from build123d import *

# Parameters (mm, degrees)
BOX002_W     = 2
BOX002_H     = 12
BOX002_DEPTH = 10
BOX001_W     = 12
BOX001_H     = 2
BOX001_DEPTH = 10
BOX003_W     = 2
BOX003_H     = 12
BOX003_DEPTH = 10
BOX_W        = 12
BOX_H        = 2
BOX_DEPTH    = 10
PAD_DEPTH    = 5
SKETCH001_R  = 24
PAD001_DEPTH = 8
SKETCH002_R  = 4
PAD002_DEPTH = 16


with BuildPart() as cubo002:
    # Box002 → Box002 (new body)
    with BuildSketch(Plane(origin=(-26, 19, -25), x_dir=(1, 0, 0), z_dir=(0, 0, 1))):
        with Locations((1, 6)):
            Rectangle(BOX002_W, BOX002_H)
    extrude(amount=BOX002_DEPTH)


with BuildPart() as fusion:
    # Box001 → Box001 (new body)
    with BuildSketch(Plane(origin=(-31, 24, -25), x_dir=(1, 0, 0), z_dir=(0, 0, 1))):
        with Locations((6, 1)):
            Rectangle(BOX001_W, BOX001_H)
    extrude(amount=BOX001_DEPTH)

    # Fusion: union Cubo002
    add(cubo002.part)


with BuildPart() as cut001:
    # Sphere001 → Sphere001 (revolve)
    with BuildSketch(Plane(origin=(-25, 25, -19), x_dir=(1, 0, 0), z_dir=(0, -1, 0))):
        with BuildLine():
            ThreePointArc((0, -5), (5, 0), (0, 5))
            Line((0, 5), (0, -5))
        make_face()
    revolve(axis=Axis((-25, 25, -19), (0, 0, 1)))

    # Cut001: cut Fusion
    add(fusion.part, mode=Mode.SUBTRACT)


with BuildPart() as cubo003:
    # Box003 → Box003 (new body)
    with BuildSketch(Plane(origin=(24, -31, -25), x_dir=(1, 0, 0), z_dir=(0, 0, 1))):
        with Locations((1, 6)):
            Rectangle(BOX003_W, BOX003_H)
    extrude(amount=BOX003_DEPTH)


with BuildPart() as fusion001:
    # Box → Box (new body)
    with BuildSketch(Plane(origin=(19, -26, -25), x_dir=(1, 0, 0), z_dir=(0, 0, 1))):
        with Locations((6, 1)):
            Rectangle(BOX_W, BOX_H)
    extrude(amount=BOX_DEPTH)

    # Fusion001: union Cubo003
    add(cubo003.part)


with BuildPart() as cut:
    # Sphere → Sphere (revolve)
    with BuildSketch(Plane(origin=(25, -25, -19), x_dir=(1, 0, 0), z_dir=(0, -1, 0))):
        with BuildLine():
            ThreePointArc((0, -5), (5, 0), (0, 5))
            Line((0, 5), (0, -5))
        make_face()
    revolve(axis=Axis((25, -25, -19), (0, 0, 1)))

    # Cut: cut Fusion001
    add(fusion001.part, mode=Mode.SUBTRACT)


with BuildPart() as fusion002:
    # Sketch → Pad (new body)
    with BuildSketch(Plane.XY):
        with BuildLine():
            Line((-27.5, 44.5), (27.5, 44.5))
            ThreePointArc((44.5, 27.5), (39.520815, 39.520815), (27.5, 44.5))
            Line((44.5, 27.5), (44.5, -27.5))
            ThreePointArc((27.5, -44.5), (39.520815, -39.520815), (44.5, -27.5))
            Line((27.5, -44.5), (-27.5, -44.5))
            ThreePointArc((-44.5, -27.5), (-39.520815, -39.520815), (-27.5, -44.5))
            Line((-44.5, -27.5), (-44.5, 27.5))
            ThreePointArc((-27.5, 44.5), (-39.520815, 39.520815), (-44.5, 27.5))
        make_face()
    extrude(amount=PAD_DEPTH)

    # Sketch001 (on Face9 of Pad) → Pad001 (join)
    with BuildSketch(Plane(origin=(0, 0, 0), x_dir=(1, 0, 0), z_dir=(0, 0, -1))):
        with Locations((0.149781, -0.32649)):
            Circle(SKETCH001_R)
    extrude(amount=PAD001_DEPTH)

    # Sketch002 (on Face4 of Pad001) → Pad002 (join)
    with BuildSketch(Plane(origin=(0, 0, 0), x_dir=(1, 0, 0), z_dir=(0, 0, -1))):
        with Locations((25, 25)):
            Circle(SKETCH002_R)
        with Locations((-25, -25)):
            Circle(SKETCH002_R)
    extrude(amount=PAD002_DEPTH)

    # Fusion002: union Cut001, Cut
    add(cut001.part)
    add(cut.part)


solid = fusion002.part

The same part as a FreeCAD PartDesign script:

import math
import FreeCAD as App
import Part
import Sketcher
from FreeCAD import Vector
Q = App.Units.Quantity

doc = App.newDocument("Part")
body = doc.addObject("PartDesign::Body", "Body")

sketch1 = doc.addObject("Sketcher::SketchObject", "Sketch")
body.addObject(sketch1)
sketch1.AttachmentSupport = (doc.XY_Plane, [""])
sketch1.MapMode = "FlatFace"
sketch1.AttachmentOffset = App.Placement(Vector(0, 0, -25), App.Rotation())
sketch1.addGeometry([
    Part.LineSegment(Vector(-26, 31, 0), Vector(-26, 19, 0)),
    Part.LineSegment(Vector(-26, 19, 0), Vector(-24, 19, 0)),
    Part.LineSegment(Vector(-24, 19, 0), Vector(-24, 31, 0)),
    Part.LineSegment(Vector(-24, 31, 0), Vector(-26, 31, 0)),
], False)
sketch1.addConstraint([
    Sketcher.Constraint("Coincident", 0, 2, 1, 1),
    Sketcher.Constraint("Coincident", 1, 2, 2, 1),
    Sketcher.Constraint("Coincident", 2, 2, 3, 1),
    Sketcher.Constraint("Coincident", 3, 2, 0, 1),
    Sketcher.Constraint("Vertical", 0),
    Sketcher.Constraint("Horizontal", 1),
    Sketcher.Constraint("Vertical", 2),
    Sketcher.Constraint("Horizontal", 3),
    Sketcher.Constraint("DistanceX", 1, 1, 1, 2, Q("2 mm")),
    Sketcher.Constraint("DistanceY", 0, 2, 0, 1, Q("12 mm")),
    Sketcher.Constraint("DistanceX", 0, 2, -1, 1, Q("26 mm")),
    Sketcher.Constraint("DistanceY", -1, 1, 0, 2, Q("19 mm")),
])
pad1 = doc.addObject("PartDesign::Pad", "Pad")
body.addObject(pad1)
pad1.Profile = sketch1
pad1.Length = 10
body2 = doc.addObject("PartDesign::Body", "Body001")

sketch2 = doc.addObject("Sketcher::SketchObject", "Sketch001")
body2.addObject(sketch2)
sketch2.AttachmentSupport = (doc.getObject("XY_Plane001"), [""])
sketch2.MapMode = "FlatFace"
sketch2.AttachmentOffset = App.Placement(Vector(0, 0, -25), App.Rotation())
sketch2.addGeometry([
    Part.LineSegment(Vector(-31, 26, 0), Vector(-31, 24, 0)),
    Part.LineSegment(Vector(-31, 24, 0), Vector(-19, 24, 0)),
    Part.LineSegment(Vector(-19, 24, 0), Vector(-19, 26, 0)),
    Part.LineSegment(Vector(-19, 26, 0), Vector(-31, 26, 0)),
], False)
sketch2.addConstraint([
    Sketcher.Constraint("Coincident", 0, 2, 1, 1),
    Sketcher.Constraint("Coincident", 1, 2, 2, 1),
    Sketcher.Constraint("Coincident", 2, 2, 3, 1),
    Sketcher.Constraint("Coincident", 3, 2, 0, 1),
    Sketcher.Constraint("Vertical", 0),
    Sketcher.Constraint("Horizontal", 1),
    Sketcher.Constraint("Vertical", 2),
    Sketcher.Constraint("Horizontal", 3),
    Sketcher.Constraint("DistanceX", 1, 1, 1, 2, Q("12 mm")),
    Sketcher.Constraint("DistanceY", 0, 2, 0, 1, Q("2 mm")),
    Sketcher.Constraint("DistanceX", 0, 2, -1, 1, Q("31 mm")),
    Sketcher.Constraint("DistanceY", -1, 1, 0, 2, Q("24 mm")),
])
pad2 = doc.addObject("PartDesign::Pad", "Pad001")
body2.addObject(pad2)
pad2.Profile = sketch2
pad2.Length = 10
doc.recompute()

boolean = doc.addObject("PartDesign::Boolean", "Boolean")
body2.addObject(boolean)
boolean.Type = "Fuse"
boolean.addObjects([body])
body3 = doc.addObject("PartDesign::Body", "Body002")

sketch3 = doc.addObject("Sketcher::SketchObject", "Sketch002")
body3.addObject(sketch3)
sketch3.AttachmentSupport = (doc.getObject("XZ_Plane002"), [""])
sketch3.MapMode = "FlatFace"
sketch3.AttachmentOffset = App.Placement(Vector(0, 0, -25), App.Rotation())
sketch3.addGeometry([
    Part.ArcOfCircle(Part.Circle(Vector(-25, -19, 0), Vector(0, 0, 1), 5), math.radians(-90), math.radians(90)),
    Part.LineSegment(Vector(-25, -14, 0), Vector(-25, -24, 0)),
], False)
sketch3.addGeometry(Part.LineSegment(Vector(-25, -24, 0), Vector(-25, -14, 0)), True)
sketch3.addConstraint([
    Sketcher.Constraint("Coincident", 0, 1, 1, 2),
    Sketcher.Constraint("Coincident", 1, 1, 0, 2),
    Sketcher.Constraint("Vertical", 1),
    Sketcher.Constraint("Vertical", 2),
    Sketcher.Constraint("Coincident", 2, 1, 0, 1),
    Sketcher.Constraint("Equal", 1, 2),
    Sketcher.Constraint("Radius", 0, Q("5 mm")),
    Sketcher.Constraint("DistanceX", 0, 3, -1, 1, Q("25 mm")),
    Sketcher.Constraint("DistanceY", 0, 3, -1, 1, Q("19 mm")),
    Sketcher.Constraint("DistanceX", 0, 1, -1, 1, Q("25 mm")),
])
revolution = doc.addObject("PartDesign::Revolution", "Revolution")
body3.addObject(revolution)
revolution.Profile = sketch3
revolution.ReferenceAxis = (sketch3, ["Axis0"])
revolution.Angle = 360
doc.recompute()

boolean2 = doc.addObject("PartDesign::Boolean", "Boolean001")
body3.addObject(boolean2)
boolean2.Type = "Cut"
boolean2.addObjects([body2])
body4 = doc.addObject("PartDesign::Body", "Body003")

sketch4 = doc.addObject("Sketcher::SketchObject", "Sketch003")
body4.addObject(sketch4)
sketch4.AttachmentSupport = (doc.getObject("XY_Plane003"), [""])
sketch4.MapMode = "FlatFace"
sketch4.AttachmentOffset = App.Placement(Vector(0, 0, -25), App.Rotation())
sketch4.addGeometry([
    Part.LineSegment(Vector(24, -19, 0), Vector(24, -31, 0)),
    Part.LineSegment(Vector(24, -31, 0), Vector(26, -31, 0)),
    Part.LineSegment(Vector(26, -31, 0), Vector(26, -19, 0)),
    Part.LineSegment(Vector(26, -19, 0), Vector(24, -19, 0)),
], False)
sketch4.addConstraint([
    Sketcher.Constraint("Coincident", 0, 2, 1, 1),
    Sketcher.Constraint("Coincident", 1, 2, 2, 1),
    Sketcher.Constraint("Coincident", 2, 2, 3, 1),
    Sketcher.Constraint("Coincident", 3, 2, 0, 1),
    Sketcher.Constraint("Vertical", 0),
    Sketcher.Constraint("Horizontal", 1),
    Sketcher.Constraint("Vertical", 2),
    Sketcher.Constraint("Horizontal", 3),
    Sketcher.Constraint("DistanceX", 1, 1, 1, 2, Q("2 mm")),
    Sketcher.Constraint("DistanceY", 0, 2, 0, 1, Q("12 mm")),
    Sketcher.Constraint("DistanceX", -1, 1, 0, 2, Q("24 mm")),
    Sketcher.Constraint("DistanceY", 0, 2, -1, 1, Q("31 mm")),
])
pad3 = doc.addObject("PartDesign::Pad", "Pad002")
body4.addObject(pad3)
pad3.Profile = sketch4
pad3.Length = 10
body5 = doc.addObject("PartDesign::Body", "Body004")

sketch5 = doc.addObject("Sketcher::SketchObject", "Sketch004")
body5.addObject(sketch5)
sketch5.AttachmentSupport = (doc.getObject("XY_Plane004"), [""])
sketch5.MapMode = "FlatFace"
sketch5.AttachmentOffset = App.Placement(Vector(0, 0, -25), App.Rotation())
sketch5.addGeometry([
    Part.LineSegment(Vector(19, -24, 0), Vector(19, -26, 0)),
    Part.LineSegment(Vector(19, -26, 0), Vector(31, -26, 0)),
    Part.LineSegment(Vector(31, -26, 0), Vector(31, -24, 0)),
    Part.LineSegment(Vector(31, -24, 0), Vector(19, -24, 0)),
], False)
sketch5.addConstraint([
    Sketcher.Constraint("Coincident", 0, 2, 1, 1),
    Sketcher.Constraint("Coincident", 1, 2, 2, 1),
    Sketcher.Constraint("Coincident", 2, 2, 3, 1),
    Sketcher.Constraint("Coincident", 3, 2, 0, 1),
    Sketcher.Constraint("Vertical", 0),
    Sketcher.Constraint("Horizontal", 1),
    Sketcher.Constraint("Vertical", 2),
    Sketcher.Constraint("Horizontal", 3),
    Sketcher.Constraint("DistanceX", 1, 1, 1, 2, Q("12 mm")),
    Sketcher.Constraint("DistanceY", 0, 2, 0, 1, Q("2 mm")),
    Sketcher.Constraint("DistanceX", -1, 1, 0, 2, Q("19 mm")),
    Sketcher.Constraint("DistanceY", 0, 2, -1, 1, Q("26 mm")),
])
pad4 = doc.addObject("PartDesign::Pad", "Pad003")
body5.addObject(pad4)
pad4.Profile = sketch5
pad4.Length = 10
doc.recompute()

boolean3 = doc.addObject("PartDesign::Boolean", "Boolean002")
body5.addObject(boolean3)
boolean3.Type = "Fuse"
boolean3.addObjects([body4])
body6 = doc.addObject("PartDesign::Body", "Body005")

sketch6 = doc.addObject("Sketcher::SketchObject", "Sketch005")
body6.addObject(sketch6)
sketch6.AttachmentSupport = (doc.getObject("XZ_Plane005"), [""])
sketch6.MapMode = "FlatFace"
sketch6.AttachmentOffset = App.Placement(Vector(0, 0, 25), App.Rotation())
sketch6.addGeometry([
    Part.ArcOfCircle(Part.Circle(Vector(25, -19, 0), Vector(0, 0, 1), 5), math.radians(-90), math.radians(90)),
    Part.LineSegment(Vector(25, -14, 0), Vector(25, -24, 0)),
], False)
sketch6.addGeometry(Part.LineSegment(Vector(25, -24, 0), Vector(25, -14, 0)), True)
sketch6.addConstraint([
    Sketcher.Constraint("Coincident", 0, 1, 1, 2),
    Sketcher.Constraint("Coincident", 1, 1, 0, 2),
    Sketcher.Constraint("Vertical", 1),
    Sketcher.Constraint("Vertical", 2),
    Sketcher.Constraint("Coincident", 2, 1, 0, 1),
    Sketcher.Constraint("Equal", 1, 2),
    Sketcher.Constraint("Radius", 0, Q("5 mm")),
    Sketcher.Constraint("DistanceX", -1, 1, 0, 3, Q("25 mm")),
    Sketcher.Constraint("DistanceY", 0, 3, -1, 1, Q("19 mm")),
    Sketcher.Constraint("DistanceX", -1, 1, 0, 1, Q("25 mm")),
])
revolution2 = doc.addObject("PartDesign::Revolution", "Revolution001")
body6.addObject(revolution2)
revolution2.Profile = sketch6
revolution2.ReferenceAxis = (sketch6, ["Axis0"])
revolution2.Angle = 360
doc.recompute()

boolean4 = doc.addObject("PartDesign::Boolean", "Boolean003")
body6.addObject(boolean4)
boolean4.Type = "Cut"
boolean4.addObjects([body5])
body7 = doc.addObject("PartDesign::Body", "Body006")

sketch7 = doc.addObject("Sketcher::SketchObject", "Sketch006")
body7.addObject(sketch7)
sketch7.AttachmentSupport = (doc.getObject("XY_Plane006"), [""])
sketch7.MapMode = "FlatFace"
sketch7.addGeometry([
    Part.LineSegment(Vector(28, 44, 0), Vector(-28, 44, 0)),
    Part.ArcOfCircle(Part.Circle(Vector(-27, 27, 0), Vector(0, 0, 1), 17), math.radians(90), math.radians(180)),
    Part.LineSegment(Vector(-44, 28, 0), Vector(-44, -28, 0)),
    Part.ArcOfCircle(Part.Circle(Vector(-27, -27, 0), Vector(0, 0, 1), 17), math.radians(-180), math.radians(-90)),
    Part.LineSegment(Vector(-28, -44, 0), Vector(28, -44, 0)),
    Part.ArcOfCircle(Part.Circle(Vector(27, -27, 0), Vector(0, 0, 1), 17), math.radians(-90), math.radians(0)),
    Part.LineSegment(Vector(44, -28, 0), Vector(44, 28, 0)),
    Part.ArcOfCircle(Part.Circle(Vector(27, 27, 0), Vector(0, 0, 1), 17), math.radians(0), math.radians(90)),
], False)
sketch7.addConstraint([
    Sketcher.Constraint("Tangent", 0, 2, 1, 1),
    Sketcher.Constraint("Tangent", 1, 2, 2, 1),
    Sketcher.Constraint("Tangent", 2, 2, 3, 1),
    Sketcher.Constraint("Tangent", 3, 2, 4, 1),
    Sketcher.Constraint("Tangent", 4, 2, 5, 1),
    Sketcher.Constraint("Tangent", 5, 2, 6, 1),
    Sketcher.Constraint("Tangent", 6, 2, 7, 1),
    Sketcher.Constraint("Tangent", 7, 2, 0, 1),
    Sketcher.Constraint("Horizontal", 0),
    Sketcher.Constraint("Vertical", 2),
    Sketcher.Constraint("Horizontal", 4),
    Sketcher.Constraint("Vertical", 6),
    Sketcher.Constraint("Equal", 1, 3),
    Sketcher.Constraint("Equal", 3, 5),
    Sketcher.Constraint("Equal", 5, 7),
    Sketcher.Constraint("Symmetric", 1, 3, 5, 3, -1, 1),
    Sketcher.Constraint("Equal", 4, 2),
    Sketcher.Constraint("Radius", 1, Q("17.000001 mm")),
    Sketcher.Constraint("DistanceX", 0, 2, 0, 1, Q("55 mm")),
])
pad5 = doc.addObject("PartDesign::Pad", "Pad004")
body7.addObject(pad5)
pad5.Profile = sketch7
pad5.Length = 5

sketch8 = doc.addObject("Sketcher::SketchObject", "Sketch007")
body7.addObject(sketch8)
sketch8.AttachmentSupport = (doc.getObject("XY_Plane006"), [""])
sketch8.MapMode = "FlatFace"
sketch8.addGeometry(Part.Circle(Vector(0, 0, 0), Vector(0, 0, 1), 24), False)
sketch8.addConstraint([
    Sketcher.Constraint("Diameter", 0, Q("48 mm")),
    Sketcher.Constraint("DistanceX", -1, 1, 0, 3, Q("0.149781 mm")),
    Sketcher.Constraint("DistanceY", -1, 1, 0, 3, Q("0.32649 mm")),
])
pad6 = doc.addObject("PartDesign::Pad", "Pad005")
body7.addObject(pad6)
pad6.Profile = sketch8
pad6.Length = 8
pad6.Reversed = True

sketch9 = doc.addObject("Sketcher::SketchObject", "Sketch008")
body7.addObject(sketch9)
sketch9.AttachmentSupport = (doc.getObject("XY_Plane006"), [""])
sketch9.MapMode = "FlatFace"
sketch9.addGeometry([
    Part.Circle(Vector(25, -25, 0), Vector(0, 0, 1), 4),
    Part.Circle(Vector(-25, 25, 0), Vector(0, 0, 1), 4),
], False)
sketch9.addConstraint([
    Sketcher.Constraint("Equal", 0, 1),
    Sketcher.Constraint("Symmetric", 0, 3, 1, 3, -1, 1),
    Sketcher.Constraint("Diameter", 0, Q("8 mm")),
    Sketcher.Constraint("DistanceX", -1, 1, 0, 3, Q("25 mm")),
    Sketcher.Constraint("DistanceY", 0, 3, -1, 1, Q("25 mm")),
])
pad7 = doc.addObject("PartDesign::Pad", "Pad006")
body7.addObject(pad7)
pad7.Profile = sketch9
pad7.Length = 16
pad7.Reversed = True
doc.recompute()

boolean5 = doc.addObject("PartDesign::Boolean", "Boolean004")
body7.addObject(boolean5)
boolean5.Type = "Fuse"
boolean5.addObjects([body3])
doc.recompute()

boolean6 = doc.addObject("PartDesign::Boolean", "Boolean005")
body7.addObject(boolean6)
boolean6.Type = "Fuse"
boolean6.addObjects([body6])

doc.recompute()
